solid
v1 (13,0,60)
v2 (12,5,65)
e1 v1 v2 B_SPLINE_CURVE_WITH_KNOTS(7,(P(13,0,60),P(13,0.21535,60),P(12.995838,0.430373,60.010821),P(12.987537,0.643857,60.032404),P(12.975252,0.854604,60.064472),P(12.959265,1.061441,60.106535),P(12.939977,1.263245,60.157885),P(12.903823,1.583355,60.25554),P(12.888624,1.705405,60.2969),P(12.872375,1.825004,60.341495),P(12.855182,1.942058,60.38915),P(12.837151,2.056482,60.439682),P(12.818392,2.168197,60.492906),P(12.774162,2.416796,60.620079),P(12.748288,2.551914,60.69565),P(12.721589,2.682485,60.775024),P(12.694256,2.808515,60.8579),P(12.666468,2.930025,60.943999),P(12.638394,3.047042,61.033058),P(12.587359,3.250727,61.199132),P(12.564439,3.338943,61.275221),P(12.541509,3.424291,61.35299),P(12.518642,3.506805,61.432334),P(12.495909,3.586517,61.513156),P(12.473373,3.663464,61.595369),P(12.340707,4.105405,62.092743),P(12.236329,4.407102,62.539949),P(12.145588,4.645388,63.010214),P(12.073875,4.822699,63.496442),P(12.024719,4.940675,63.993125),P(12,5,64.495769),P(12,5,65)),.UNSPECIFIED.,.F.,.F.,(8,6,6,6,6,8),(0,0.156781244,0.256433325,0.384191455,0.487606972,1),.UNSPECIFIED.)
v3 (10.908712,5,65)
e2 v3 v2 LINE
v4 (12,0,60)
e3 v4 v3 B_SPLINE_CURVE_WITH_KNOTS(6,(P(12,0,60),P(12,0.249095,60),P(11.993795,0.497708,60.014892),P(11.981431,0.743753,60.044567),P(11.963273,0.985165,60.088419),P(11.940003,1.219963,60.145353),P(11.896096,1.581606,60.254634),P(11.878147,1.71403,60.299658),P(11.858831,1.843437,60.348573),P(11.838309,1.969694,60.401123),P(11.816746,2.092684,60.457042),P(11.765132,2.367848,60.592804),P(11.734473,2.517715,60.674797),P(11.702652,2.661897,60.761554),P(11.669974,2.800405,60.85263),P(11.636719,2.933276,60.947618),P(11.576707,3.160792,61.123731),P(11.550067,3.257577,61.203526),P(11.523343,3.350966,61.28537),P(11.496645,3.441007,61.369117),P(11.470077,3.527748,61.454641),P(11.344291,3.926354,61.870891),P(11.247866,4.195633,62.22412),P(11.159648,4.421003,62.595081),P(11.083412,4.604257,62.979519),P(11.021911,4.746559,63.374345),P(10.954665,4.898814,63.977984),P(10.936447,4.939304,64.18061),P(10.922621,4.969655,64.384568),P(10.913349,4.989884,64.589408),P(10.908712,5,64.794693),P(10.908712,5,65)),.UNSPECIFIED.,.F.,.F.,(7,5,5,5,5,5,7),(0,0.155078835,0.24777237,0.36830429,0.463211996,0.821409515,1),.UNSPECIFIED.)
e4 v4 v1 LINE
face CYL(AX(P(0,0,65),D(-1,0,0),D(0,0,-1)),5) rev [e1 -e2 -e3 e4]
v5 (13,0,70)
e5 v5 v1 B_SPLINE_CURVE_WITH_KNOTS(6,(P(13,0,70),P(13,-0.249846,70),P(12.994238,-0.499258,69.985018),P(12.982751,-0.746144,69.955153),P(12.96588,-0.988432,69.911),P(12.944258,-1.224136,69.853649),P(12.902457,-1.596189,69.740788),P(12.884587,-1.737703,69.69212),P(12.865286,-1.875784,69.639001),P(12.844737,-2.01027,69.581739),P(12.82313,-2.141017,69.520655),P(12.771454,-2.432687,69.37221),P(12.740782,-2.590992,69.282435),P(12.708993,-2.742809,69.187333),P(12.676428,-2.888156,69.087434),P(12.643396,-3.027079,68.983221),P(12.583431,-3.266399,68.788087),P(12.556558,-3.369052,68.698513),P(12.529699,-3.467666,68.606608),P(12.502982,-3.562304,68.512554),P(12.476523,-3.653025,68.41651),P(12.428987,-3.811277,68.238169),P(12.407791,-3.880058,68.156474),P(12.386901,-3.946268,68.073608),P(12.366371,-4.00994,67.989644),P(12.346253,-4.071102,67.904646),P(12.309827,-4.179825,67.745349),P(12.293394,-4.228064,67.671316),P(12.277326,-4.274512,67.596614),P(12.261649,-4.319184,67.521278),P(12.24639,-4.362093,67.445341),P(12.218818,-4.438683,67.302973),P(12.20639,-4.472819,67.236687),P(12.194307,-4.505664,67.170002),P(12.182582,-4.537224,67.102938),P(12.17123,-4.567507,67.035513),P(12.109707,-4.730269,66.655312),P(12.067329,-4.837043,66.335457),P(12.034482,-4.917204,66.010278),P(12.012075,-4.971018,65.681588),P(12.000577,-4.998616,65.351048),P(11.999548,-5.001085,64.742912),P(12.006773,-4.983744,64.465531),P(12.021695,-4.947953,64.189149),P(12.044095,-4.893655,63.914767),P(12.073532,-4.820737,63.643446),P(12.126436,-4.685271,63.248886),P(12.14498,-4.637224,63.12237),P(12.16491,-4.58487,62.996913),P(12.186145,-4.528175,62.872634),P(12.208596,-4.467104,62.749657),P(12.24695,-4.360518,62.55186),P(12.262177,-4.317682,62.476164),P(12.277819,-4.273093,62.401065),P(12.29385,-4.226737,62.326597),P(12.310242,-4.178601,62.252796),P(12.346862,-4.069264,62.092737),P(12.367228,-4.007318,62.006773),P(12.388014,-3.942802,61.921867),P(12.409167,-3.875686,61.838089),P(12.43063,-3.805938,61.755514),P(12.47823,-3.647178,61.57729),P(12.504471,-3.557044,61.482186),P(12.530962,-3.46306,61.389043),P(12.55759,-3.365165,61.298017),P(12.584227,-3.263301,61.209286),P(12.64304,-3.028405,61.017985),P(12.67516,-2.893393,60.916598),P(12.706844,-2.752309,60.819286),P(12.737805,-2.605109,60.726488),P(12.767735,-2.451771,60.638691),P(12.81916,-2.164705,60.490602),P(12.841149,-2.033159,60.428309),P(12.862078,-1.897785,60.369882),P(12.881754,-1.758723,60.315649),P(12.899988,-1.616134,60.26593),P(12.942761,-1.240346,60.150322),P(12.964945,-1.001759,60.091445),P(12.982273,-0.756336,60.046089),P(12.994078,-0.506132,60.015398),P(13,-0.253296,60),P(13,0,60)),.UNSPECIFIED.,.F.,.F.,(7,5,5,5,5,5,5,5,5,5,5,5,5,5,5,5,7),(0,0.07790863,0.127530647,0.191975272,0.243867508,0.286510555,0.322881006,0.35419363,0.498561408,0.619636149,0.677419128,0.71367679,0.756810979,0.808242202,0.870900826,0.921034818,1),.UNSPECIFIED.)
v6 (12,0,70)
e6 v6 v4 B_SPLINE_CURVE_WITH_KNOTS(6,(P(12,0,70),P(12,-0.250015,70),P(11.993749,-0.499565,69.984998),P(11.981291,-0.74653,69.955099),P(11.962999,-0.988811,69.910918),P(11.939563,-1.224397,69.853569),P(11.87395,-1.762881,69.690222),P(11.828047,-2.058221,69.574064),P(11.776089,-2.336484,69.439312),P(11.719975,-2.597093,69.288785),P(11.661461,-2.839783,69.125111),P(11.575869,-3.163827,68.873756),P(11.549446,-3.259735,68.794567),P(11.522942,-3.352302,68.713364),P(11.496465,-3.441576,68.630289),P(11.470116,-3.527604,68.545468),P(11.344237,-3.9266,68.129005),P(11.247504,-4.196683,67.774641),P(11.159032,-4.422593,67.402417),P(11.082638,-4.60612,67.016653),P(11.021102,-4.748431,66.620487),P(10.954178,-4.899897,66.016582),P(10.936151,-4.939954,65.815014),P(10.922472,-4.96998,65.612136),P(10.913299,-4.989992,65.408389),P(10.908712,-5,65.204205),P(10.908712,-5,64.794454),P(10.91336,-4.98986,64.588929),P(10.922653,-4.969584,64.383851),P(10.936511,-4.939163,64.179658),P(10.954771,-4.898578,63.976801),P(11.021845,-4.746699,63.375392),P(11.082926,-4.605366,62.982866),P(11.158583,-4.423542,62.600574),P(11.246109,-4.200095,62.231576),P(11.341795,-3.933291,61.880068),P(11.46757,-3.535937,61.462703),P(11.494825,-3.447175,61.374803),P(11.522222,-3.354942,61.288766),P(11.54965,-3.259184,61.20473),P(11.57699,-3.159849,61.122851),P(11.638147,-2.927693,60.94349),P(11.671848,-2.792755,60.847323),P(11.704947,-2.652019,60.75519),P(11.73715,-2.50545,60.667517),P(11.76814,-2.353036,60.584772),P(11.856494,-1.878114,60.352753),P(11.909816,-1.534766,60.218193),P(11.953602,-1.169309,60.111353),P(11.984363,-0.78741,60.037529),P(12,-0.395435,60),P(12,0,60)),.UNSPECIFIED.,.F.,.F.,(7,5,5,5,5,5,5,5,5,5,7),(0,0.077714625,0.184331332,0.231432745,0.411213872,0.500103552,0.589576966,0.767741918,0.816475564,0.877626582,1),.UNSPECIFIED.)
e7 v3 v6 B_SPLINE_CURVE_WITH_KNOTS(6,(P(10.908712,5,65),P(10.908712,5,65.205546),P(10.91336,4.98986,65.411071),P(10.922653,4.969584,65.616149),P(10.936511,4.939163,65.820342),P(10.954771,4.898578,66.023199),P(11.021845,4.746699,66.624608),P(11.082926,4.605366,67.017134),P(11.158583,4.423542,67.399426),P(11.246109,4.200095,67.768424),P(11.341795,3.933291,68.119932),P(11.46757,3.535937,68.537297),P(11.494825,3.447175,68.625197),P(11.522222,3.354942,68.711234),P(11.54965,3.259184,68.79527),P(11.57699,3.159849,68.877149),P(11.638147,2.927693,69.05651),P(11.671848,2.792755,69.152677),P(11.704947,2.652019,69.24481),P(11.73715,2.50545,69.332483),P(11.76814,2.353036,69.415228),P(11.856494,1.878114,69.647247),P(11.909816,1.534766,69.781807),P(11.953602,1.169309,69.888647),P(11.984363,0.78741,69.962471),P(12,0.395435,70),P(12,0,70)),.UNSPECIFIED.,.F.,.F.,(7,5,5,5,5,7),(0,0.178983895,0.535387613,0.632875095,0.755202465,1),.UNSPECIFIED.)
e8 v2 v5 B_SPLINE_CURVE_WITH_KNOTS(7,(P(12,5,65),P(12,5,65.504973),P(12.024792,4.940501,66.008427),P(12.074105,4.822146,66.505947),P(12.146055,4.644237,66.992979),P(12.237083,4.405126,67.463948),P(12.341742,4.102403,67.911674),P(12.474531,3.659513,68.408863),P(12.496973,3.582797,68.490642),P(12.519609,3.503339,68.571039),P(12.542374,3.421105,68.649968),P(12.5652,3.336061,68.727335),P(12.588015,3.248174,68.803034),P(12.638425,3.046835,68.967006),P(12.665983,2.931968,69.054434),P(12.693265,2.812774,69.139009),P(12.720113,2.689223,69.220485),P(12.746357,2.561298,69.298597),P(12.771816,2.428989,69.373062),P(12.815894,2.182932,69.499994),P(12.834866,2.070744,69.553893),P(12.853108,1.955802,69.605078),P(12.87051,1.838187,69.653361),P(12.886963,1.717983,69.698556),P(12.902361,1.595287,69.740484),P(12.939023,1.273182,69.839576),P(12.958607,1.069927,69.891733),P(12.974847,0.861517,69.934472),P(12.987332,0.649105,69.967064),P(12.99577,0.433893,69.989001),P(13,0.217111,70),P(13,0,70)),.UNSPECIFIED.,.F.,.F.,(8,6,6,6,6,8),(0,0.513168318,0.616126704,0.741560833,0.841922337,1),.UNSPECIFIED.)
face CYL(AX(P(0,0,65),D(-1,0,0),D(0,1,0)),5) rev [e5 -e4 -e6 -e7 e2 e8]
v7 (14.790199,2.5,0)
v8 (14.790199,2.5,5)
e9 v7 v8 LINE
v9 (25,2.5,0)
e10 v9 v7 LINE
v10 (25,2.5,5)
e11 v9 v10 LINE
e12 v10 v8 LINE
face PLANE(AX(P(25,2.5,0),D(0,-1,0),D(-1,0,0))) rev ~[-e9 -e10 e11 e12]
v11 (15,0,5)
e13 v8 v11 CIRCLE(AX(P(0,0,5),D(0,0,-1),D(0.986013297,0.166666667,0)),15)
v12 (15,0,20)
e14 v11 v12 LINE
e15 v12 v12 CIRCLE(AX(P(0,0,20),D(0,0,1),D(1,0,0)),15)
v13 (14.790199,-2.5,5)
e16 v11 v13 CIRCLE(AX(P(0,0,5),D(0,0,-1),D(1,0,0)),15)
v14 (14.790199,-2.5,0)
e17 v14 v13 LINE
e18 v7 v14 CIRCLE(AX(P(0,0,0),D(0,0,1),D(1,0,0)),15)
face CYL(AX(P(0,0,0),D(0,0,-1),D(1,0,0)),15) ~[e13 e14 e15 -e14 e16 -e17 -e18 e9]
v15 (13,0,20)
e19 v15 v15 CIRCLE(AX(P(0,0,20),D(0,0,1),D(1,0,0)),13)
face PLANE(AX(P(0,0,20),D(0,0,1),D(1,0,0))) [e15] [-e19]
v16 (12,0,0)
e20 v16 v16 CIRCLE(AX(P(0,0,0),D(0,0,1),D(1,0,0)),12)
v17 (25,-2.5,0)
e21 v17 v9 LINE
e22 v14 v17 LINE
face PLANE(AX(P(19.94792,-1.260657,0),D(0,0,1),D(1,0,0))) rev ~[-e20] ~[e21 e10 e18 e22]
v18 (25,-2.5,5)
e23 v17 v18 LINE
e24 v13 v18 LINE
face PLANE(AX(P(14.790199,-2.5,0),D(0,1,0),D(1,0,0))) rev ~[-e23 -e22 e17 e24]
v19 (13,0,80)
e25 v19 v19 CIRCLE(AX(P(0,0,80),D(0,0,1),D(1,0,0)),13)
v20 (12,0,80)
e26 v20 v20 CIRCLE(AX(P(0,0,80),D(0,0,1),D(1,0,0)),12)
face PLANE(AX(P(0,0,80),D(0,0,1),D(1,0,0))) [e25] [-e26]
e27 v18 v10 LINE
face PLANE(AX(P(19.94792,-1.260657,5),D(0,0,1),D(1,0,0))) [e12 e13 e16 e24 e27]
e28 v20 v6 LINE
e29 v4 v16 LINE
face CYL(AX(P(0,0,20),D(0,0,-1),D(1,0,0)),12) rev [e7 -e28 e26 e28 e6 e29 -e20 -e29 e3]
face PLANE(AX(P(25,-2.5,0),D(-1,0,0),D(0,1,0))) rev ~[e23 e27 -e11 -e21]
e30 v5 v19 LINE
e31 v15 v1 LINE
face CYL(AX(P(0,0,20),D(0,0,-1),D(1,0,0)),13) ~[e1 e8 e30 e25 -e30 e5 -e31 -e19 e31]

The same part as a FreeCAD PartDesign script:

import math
import FreeCAD as App
import Part
import Sketcher

V = App.Vector
Q = App.Units.Quantity

doc = App.newDocument("Part")
body = doc.addObject("PartDesign::Body", "Body")

sketch1 = body.newObject("Sketcher::SketchObject", "Sketch")
sketch1.AttachmentSupport = (doc.getObject("XY_Plane"), [""])
sketch1.MapMode = "FlatFace"
sketch1.addGeometry(Part.Circle(V(0, 0, 0), V(0, 0, 1), 15), False)
sketch1.addGeometry(Part.Circle(V(0, 0, 0), V(0, 0, 1), 12), False)
sketch1.addConstraint(Sketcher.Constraint("Coincident", 0, 3, -1, 1))
sketch1.addConstraint(Sketcher.Constraint("Coincident", 1, 3, -1, 1))
sketch1.addConstraint(Sketcher.Constraint("Diameter", 0, Q("30 mm")))
sketch1.addConstraint(Sketcher.Constraint("Diameter", 1, Q("24 mm")))
pad1 = body.newObject("PartDesign::Pad", "Pad")
pad1.Profile = sketch1
pad1.Length = 20

sketch2 = body.newObject("Sketcher::SketchObject", "Sketch001")
sketch2.AttachmentSupport = (doc.getObject("XY_Plane"), [""])
sketch2.MapMode = "FlatFace"
sketch2.AttachmentOffset = App.Placement(V(0, 0, 20), App.Rotation())
sketch2.addGeometry(Part.Circle(V(0, 0, 0), V(0, 0, 1), 13), False)
sketch2.addGeometry(Part.Circle(V(0, 0, 0), V(0, 0, 1), 12), False)
sketch2.addConstraint(Sketcher.Constraint("Coincident", 0, 3, -1, 1))
sketch2.addConstraint(Sketcher.Constraint("Coincident", 1, 3, -1, 1))
sketch2.addConstraint(Sketcher.Constraint("Diameter", 0, Q("26 mm")))
sketch2.addConstraint(Sketcher.Constraint("Diameter", 1, Q("24 mm")))
pad2 = body.newObject("PartDesign::Pad", "Pad001")
pad2.Profile = sketch2
pad2.Length = 60

sketch3 = body.newObject("Sketcher::SketchObject", "Sketch002")
sketch3.AttachmentSupport = (doc.getObject("XY_Plane"), [""])
sketch3.MapMode = "FlatFace"
sketch3.addGeometry(Part.ArcOfCircle(Part.Circle(V(0, 0, 0), V(0, 0, 1), 15), math.radians(-9.59), math.radians(0)), False)
sketch3.addGeometry(Part.LineSegment(V(14.8, -2.5, 0), V(25, -2.5, 0)), False)
sketch3.addGeometry(Part.LineSegment(V(25, -2.5, 0), V(25, 2.5, 0)), False)
sketch3.addGeometry(Part.LineSegment(V(25, 2.5, 0), V(14.8, 2.5, 0)), False)
sketch3.addGeometry(Part.ArcOfCircle(Part.Circle(V(0, 0, 0), V(0, 0, 1), 15), math.radians(0), math.radians(9.59)), False)
sketch3.addConstraint(Sketcher.Constraint("Coincident", 0, 1, 1, 1))
sketch3.addConstraint(Sketcher.Constraint("Coincident", 1, 2, 2, 1))
sketch3.addConstraint(Sketcher.Constraint("Coincident", 2, 2, 3, 1))
sketch3.addConstraint(Sketcher.Constraint("Coincident", 3, 2, 4, 2))
sketch3.addConstraint(Sketcher.Constraint("Tangent", 4, 1, 0, 2))
sketch3.addConstraint(Sketcher.Constraint("Horizontal", 1))
sketch3.addConstraint(Sketcher.Constraint("Vertical", 2))
sketch3.addConstraint(Sketcher.Constraint("Horizontal", 3))
sketch3.addConstraint(Sketcher.Constraint("Coincident", 0, 3, -1, 1))
sketch3.addConstraint(Sketcher.Constraint("Equal", 0, 4))
sketch3.addConstraint(Sketcher.Constraint("PointOnObject", 4, 1, -1))
sketch3.addConstraint(Sketcher.Constraint("Vertical", 0, 1, 3, 2))
sketch3.addConstraint(Sketcher.Constraint("Radius", 0, Q("15 mm")))
sketch3.addConstraint(Sketcher.Constraint("DistanceY", 2, 1, 2, 2, Q("5 mm")))
sketch3.addConstraint(Sketcher.Constraint("DistanceX", -1, 1, 1, 2, Q("25 mm")))
pad3 = body.newObject("PartDesign::Pad", "Pad002")
pad3.Profile = sketch3
pad3.Length = 5

sketch4 = body.newObject("Sketcher::SketchObject", "Sketch003")
sketch4.AttachmentSupport = (doc.getObject("YZ_Plane"), [""])
sketch4.MapMode = "FlatFace"
sketch4.addGeometry(Part.ArcOfCircle(Part.Circle(V(0, 65, 0), V(0, 0, 1), 5), math.radians(-90), math.radians(0)), False)
sketch4.addGeometry(Part.ArcOfCircle(Part.Circle(V(0, 65, 0), V(0, 0, 1), 5), math.radians(0), math.radians(270)), False)
sketch4.addConstraint(Sketcher.Constraint("Tangent", 0, 1, 1, 2))
sketch4.addConstraint(Sketcher.Constraint("Coincident", 1, 1, 0, 2))
sketch4.addConstraint(Sketcher.Constraint("PointOnObject", 0, 3, -2))
sketch4.addConstraint(Sketcher.Constraint("PointOnObject", 0, 1, -2))
sketch4.addConstraint(Sketcher.Constraint("Horizontal", 0, 3, 1, 1))
sketch4.addConstraint(Sketcher.Constraint("Radius", 0, Q("5 mm")))
sketch4.addConstraint(Sketcher.Constraint("DistanceY", -1, 1, 0, 3, Q("65 mm")))
pocket1 = body.newObject("PartDesign::Pocket", "Pocket")
pocket1.Profile = sketch4
pocket1.Length = 25
pocket1.Reversed = True

doc.recompute()
